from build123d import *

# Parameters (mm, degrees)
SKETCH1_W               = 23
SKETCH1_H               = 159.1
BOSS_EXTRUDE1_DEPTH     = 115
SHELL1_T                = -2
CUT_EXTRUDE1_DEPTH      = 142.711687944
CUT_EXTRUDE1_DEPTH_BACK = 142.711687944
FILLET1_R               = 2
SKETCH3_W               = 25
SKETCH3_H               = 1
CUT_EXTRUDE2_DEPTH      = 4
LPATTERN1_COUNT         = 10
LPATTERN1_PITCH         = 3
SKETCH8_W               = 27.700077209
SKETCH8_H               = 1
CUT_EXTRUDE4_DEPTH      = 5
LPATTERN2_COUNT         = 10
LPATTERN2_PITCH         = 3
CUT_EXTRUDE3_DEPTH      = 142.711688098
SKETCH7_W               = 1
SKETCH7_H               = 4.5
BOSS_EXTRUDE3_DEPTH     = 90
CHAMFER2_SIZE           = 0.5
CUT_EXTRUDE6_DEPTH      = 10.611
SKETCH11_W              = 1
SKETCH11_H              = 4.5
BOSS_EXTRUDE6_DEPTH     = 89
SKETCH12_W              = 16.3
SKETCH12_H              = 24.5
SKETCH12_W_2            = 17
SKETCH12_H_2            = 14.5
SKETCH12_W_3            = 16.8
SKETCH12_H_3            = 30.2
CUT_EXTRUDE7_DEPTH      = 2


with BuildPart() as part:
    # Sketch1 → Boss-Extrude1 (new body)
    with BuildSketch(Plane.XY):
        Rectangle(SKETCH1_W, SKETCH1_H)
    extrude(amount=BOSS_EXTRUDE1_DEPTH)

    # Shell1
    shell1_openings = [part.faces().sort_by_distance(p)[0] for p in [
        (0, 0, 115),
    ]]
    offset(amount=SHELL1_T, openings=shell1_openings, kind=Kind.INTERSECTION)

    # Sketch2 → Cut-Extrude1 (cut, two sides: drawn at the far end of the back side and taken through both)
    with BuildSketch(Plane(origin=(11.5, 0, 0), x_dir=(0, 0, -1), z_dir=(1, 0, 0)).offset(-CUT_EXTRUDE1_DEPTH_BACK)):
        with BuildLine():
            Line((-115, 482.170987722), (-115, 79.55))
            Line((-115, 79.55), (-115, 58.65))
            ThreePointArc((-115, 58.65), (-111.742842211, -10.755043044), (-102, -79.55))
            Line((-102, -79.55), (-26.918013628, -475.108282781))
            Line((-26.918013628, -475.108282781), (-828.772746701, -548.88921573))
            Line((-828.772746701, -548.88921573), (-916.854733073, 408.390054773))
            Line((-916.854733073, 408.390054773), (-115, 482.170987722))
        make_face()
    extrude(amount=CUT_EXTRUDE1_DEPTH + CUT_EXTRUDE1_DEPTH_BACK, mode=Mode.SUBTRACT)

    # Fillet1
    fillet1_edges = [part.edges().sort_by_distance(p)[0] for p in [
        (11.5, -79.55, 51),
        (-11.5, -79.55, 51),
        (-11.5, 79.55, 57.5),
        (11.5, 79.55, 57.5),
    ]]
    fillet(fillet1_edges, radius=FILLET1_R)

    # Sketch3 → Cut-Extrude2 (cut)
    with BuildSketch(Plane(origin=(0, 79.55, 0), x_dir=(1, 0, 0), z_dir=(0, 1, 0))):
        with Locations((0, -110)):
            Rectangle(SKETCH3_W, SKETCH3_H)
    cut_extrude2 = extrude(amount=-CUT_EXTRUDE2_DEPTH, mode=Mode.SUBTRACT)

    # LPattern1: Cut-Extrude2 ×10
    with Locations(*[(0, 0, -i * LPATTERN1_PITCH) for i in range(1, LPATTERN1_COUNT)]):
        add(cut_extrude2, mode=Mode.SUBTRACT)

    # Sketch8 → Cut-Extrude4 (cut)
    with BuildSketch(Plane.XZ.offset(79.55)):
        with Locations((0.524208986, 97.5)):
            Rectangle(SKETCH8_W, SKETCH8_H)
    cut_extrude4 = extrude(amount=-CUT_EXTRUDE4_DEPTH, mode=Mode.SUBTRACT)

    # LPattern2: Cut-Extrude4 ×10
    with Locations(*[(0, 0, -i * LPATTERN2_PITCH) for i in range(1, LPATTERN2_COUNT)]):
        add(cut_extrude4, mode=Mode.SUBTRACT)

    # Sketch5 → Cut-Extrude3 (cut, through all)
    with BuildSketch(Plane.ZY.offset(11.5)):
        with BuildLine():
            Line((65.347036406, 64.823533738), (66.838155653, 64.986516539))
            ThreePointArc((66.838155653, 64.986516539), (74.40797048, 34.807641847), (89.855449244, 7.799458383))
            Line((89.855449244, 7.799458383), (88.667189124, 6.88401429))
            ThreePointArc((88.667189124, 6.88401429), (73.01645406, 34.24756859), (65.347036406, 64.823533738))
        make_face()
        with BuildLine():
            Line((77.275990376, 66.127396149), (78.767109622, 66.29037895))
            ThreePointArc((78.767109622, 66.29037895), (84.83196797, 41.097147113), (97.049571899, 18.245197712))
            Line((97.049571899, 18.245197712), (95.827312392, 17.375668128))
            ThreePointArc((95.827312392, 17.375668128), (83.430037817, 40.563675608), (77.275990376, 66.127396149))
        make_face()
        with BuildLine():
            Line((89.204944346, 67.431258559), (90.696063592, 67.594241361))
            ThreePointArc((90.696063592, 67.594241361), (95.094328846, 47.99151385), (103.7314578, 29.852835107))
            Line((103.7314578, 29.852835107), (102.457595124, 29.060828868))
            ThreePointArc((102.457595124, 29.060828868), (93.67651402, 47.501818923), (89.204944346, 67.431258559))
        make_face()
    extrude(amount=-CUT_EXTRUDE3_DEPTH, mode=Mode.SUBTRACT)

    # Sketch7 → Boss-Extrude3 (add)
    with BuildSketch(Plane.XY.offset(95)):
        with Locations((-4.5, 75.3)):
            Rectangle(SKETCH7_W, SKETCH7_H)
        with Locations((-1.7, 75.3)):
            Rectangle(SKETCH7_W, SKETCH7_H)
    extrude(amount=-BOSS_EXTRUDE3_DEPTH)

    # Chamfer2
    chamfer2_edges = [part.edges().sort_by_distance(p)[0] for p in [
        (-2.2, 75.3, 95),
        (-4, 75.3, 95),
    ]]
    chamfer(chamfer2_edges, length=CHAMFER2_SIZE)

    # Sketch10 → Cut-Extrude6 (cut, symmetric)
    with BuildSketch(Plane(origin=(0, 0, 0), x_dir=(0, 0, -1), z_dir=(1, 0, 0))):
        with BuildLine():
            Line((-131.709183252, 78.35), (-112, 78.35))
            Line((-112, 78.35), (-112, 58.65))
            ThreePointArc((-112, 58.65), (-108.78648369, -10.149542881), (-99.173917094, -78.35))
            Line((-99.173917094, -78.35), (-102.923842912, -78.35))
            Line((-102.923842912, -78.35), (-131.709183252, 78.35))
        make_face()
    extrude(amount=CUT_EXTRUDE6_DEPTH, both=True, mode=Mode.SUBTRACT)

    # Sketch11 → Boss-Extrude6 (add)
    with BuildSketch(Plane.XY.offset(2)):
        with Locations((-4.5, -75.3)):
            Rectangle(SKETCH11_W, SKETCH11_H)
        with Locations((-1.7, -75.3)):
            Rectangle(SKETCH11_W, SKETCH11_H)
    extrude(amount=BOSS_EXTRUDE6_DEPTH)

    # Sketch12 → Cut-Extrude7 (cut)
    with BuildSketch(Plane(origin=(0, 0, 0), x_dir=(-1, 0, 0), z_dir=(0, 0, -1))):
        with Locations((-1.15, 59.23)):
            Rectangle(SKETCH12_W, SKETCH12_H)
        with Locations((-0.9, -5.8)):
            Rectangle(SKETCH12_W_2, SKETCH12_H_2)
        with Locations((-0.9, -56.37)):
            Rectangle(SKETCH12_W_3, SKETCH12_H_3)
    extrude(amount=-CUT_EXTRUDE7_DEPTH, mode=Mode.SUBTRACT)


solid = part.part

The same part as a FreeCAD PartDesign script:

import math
import FreeCAD as App
import Part
import Sketcher


def edges_at(feature, points):
    """Names of the edges that pass closest to the given points."""
    edges = feature.Shape.Edges
    near = lambda p: min(range(len(edges)), key=lambda i: edges[i].distToShape(Part.Vertex(*p))[0])
    return sorted({f"Edge{near(p) + 1}" for p in points})


def faces_at(feature, points):
    """Names of the faces that lie closest to the given points."""
    faces = feature.Shape.Faces
    near = lambda p: min(range(len(faces)), key=lambda i: faces[i].distToShape(Part.Vertex(*p))[0])
    return sorted({f"Face{near(p) + 1}" for p in points})

doc = App.newDocument("Part")
body = doc.addObject("PartDesign::Body", "Body")

sketch1 = body.newObject("Sketcher::SketchObject", "Sketch")
sketch1.AttachmentSupport = (doc.getObject("XY_Plane"), [""])
sketch1.MapMode = "FlatFace"
sketch1.addGeometry(Part.LineSegment(App.Vector(-12, 80, 0), App.Vector(-12, -80, 0)), False)
sketch1.addGeometry(Part.LineSegment(App.Vector(-12, -80, 0), App.Vector(12, -80, 0)), False)
sketch1.addGeometry(Part.LineSegment(App.Vector(12, -80, 0), App.Vector(12, 80, 0)), False)
sketch1.addGeometry(Part.LineSegment(App.Vector(12, 80, 0), App.Vector(-12, 80, 0)), False)
sketch1.addConstraint(Sketcher.Constraint("Coincident", 0, 2, 1, 1))
sketch1.addConstraint(Sketcher.Constraint("Coincident", 1, 2, 2, 1))
sketch1.addConstraint(Sketcher.Constraint("Coincident", 2, 2, 3, 1))
sketch1.addConstraint(Sketcher.Constraint("Coincident", 3, 2, 0, 1))
sketch1.addConstraint(Sketcher.Constraint("Vertical", 0))
sketch1.addConstraint(Sketcher.Constraint("Horizontal", 1))
sketch1.addConstraint(Sketcher.Constraint("Vertical", 2))
sketch1.addConstraint(Sketcher.Constraint("Horizontal", 3))
sketch1.addConstraint(Sketcher.Constraint("Symmetric", 0, 2, 2, 2, -1, 1))
sketch1.addConstraint(Sketcher.Constraint("DistanceX", 1, 1, 1, 2, 23.0))
sketch1.addConstraint(Sketcher.Constraint("DistanceY", 0, 2, 0, 1, 159.1))
pad1 = body.newObject("PartDesign::Pad", "Pad")
pad1.Profile = sketch1
pad1.Length = 115
doc.recompute()

thickness = body.newObject("PartDesign::Thickness", "Thickness")
thickness.Base = (pad1, faces_at(pad1, [(0, 0, 115)]))
thickness.Value = 2
thickness.Reversed = True
thickness.Join = "Intersection"

sketch2 = body.newObject("Sketcher::SketchObject", "Sketch001")
sketch2.AttachmentSupport = (doc.getObject("YZ_Plane"), [""])
sketch2.MapMode = "FlatFace"
sketch2.AttachmentOffset = App.Placement(App.Vector(0, 0, 11.5), App.Rotation())
sketch2.addGeometry(Part.LineSegment(App.Vector(59, 115, 0), App.Vector(482, 115, 0)), False)
sketch2.addGeometry(Part.LineSegment(App.Vector(482, 115, 0), App.Vector(408, 917, 0)), False)
sketch2.addGeometry(Part.LineSegment(App.Vector(408, 917, 0), App.Vector(-549, 829, 0)), False)
sketch2.addGeometry(Part.LineSegment(App.Vector(-549, 829, 0), App.Vector(-475, 27, 0)), False)
sketch2.addGeometry(Part.LineSegment(App.Vector(-475, 27, 0), App.Vector(-80, 102, 0)), False)
sketch2.addGeometry(Part.ArcOfCircle(Part.Circle(App.Vector(59, -626, 0), App.Vector(0, 0, 1), 741), math.radians(90), math.radians(100.75)), False)
sketch2.addConstraint(Sketcher.Constraint("Coincident", 0, 2, 1, 1))
sketch2.addConstraint(Sketcher.Constraint("Coincident", 1, 2, 2, 1))
sketch2.addConstraint(Sketcher.Constraint("Coincident", 2, 2, 3, 1))
sketch2.addConstraint(Sketcher.Constraint("Coincident", 3, 2, 4, 1))
sketch2.addConstraint(Sketcher.Constraint("Tangent", 4, 2, 5, 2))
sketch2.addConstraint(Sketcher.Constraint("Tangent", 5, 1, 0, 1))
sketch2.addConstraint(Sketcher.Constraint("Horizontal", 0))
sketch2.addConstraint(Sketcher.Constraint("Perpendicular", 1, 2))
sketch2.addConstraint(Sketcher.Constraint("Perpendicular", 2, 3))
sketch2.addConstraint(Sketcher.Constraint("Equal", 1, 3))
sketch2.addConstraint(Sketcher.Constraint("DistanceY", -1, 1, 0, 2, 115.0))
sketch2.addConstraint(Sketcher.Constraint("DistanceY", -1, 1, 4, 2, 102.0))
sketch2.addConstraint(Sketcher.Constraint("DistanceX", 4, 2, 5, 3, 138.2))
sketch2.addConstraint(Sketcher.Constraint("DistanceX", -1, 1, 5, 3, 58.65))
sketch2.addConstraint(Sketcher.Constraint("DistanceY", 5, 3, 2, 2, 1454.858901))
sketch2.addConstraint(Sketcher.Constraint("DistanceX", 0, 1, 0, 2, 423.520988))
sketch2.addConstraint(Sketcher.Constraint("DistanceX", 2, 2, 1, 2, 957.279271))
pocket1 = body.newObject("PartDesign::Pocket", "Pocket")
pocket1.Profile = sketch2
pocket1.Type = "ThroughAll"
pocket1.Midplane = True
doc.recompute()

fillet = body.newObject("PartDesign::Fillet", "Fillet")
fillet.Base = (pocket1, edges_at(pocket1, [
    (11.5, -79.55, 51),
    (-11.5, -79.55, 51),
    (-11.5, 79.55, 57.5),
    (11.5, 79.55, 57.5),
]))
fillet.Radius = 2

sketch3 = body.newObject("Sketcher::SketchObject", "Sketch002")
sketch3.AttachmentSupport = (doc.getObject("XZ_Plane"), [""])
sketch3.MapMode = "FlatFace"
sketch3.AttachmentOffset = App.Placement(App.Vector(0, 0, -79.55), App.Rotation())
sketch3.addGeometry(Part.LineSegment(App.Vector(-12.5, 109.5, 0), App.Vector(-12.5, 110.5, 0)), False)
sketch3.addGeometry(Part.LineSegment(App.Vector(-12.5, 110.5, 0), App.Vector(12.5, 110.5, 0)), False)
sketch3.addGeometry(Part.LineSegment(App.Vector(12.5, 110.5, 0), App.Vector(12.5, 109.5, 0)), False)
sketch3.addGeometry(Part.LineSegment(App.Vector(12.5, 109.5, 0), App.Vector(-12.5, 109.5, 0)), False)
sketch3.addConstraint(Sketcher.Constraint("Coincident", 0, 2, 1, 1))
sketch3.addConstraint(Sketcher.Constraint("Coincident", 1, 2, 2, 1))
sketch3.addConstraint(Sketcher.Constraint("Coincident", 2, 2, 3, 1))
sketch3.addConstraint(Sketcher.Constraint("Coincident", 3, 2, 0, 1))
sketch3.addConstraint(Sketcher.Constraint("Vertical", 0))
sketch3.addConstraint(Sketcher.Constraint("Horizontal", 1))
sketch3.addConstraint(Sketcher.Constraint("Vertical", 2))
sketch3.addConstraint(Sketcher.Constraint("Horizontal", 3))
sketch3.addConstraint(Sketcher.Constraint("DistanceX", 1, 1, 1, 2, 25.0))
sketch3.addConstraint(Sketcher.Constraint("DistanceY", 0, 1, 0, 2, 1.0))
sketch3.addConstraint(Sketcher.Constraint("DistanceX", 0, 2, -1, 1, 12.5))
sketch3.addConstraint(Sketcher.Constraint("DistanceY", -1, 1, 0, 2, 110.5))
pocket2 = body.newObject("PartDesign::Pocket", "Pocket001")
pocket2.Profile = sketch3
pocket2.Length = 4
pocket2.Reversed = True
doc.recompute()

linearpattern = body.newObject("PartDesign::LinearPattern", "LinearPattern")
linearpattern.Originals = [pocket2]
linearpattern.Direction = (doc.getObject("Z_Axis"), [""])
linearpattern.Mode = "offset"
linearpattern.Offset = 3
linearpattern.Occurrences = 10
linearpattern.Reversed = True
body.Tip = linearpattern

sketch4 = body.newObject("Sketcher::SketchObject", "Sketch003")
sketch4.AttachmentSupport = (doc.getObject("XZ_Plane"), [""])
sketch4.MapMode = "FlatFace"
sketch4.AttachmentOffset = App.Placement(App.Vector(0, 0, 79.55), App.Rotation())
sketch4.addGeometry(Part.LineSegment(App.Vector(-13.3, 98, 0), App.Vector(-13.3, 97, 0)), False)
sketch4.addGeometry(Part.LineSegment(App.Vector(-13.3, 97, 0), App.Vector(14.4, 97, 0)), False)
sketch4.addGeometry(Part.LineSegment(App.Vector(14.4, 97, 0), App.Vector(14.4, 98, 0)), False)
sketch4.addGeometry(Part.LineSegment(App.Vector(14.4, 98, 0), App.Vector(-13.3, 98, 0)), False)
sketch4.addConstraint(Sketcher.Constraint("Coincident", 0, 2, 1, 1))
sketch4.addConstraint(Sketcher.Constraint("Coincident", 1, 2, 2, 1))
sketch4.addConstraint(Sketcher.Constraint("Coincident", 2, 2, 3, 1))
sketch4.addConstraint(Sketcher.Constraint("Coincident", 3, 2, 0, 1))
sketch4.addConstraint(Sketcher.Constraint("Vertical", 0))
sketch4.addConstraint(Sketcher.Constraint("Horizontal", 1))
sketch4.addConstraint(Sketcher.Constraint("Vertical", 2))
sketch4.addConstraint(Sketcher.Constraint("Horizontal", 3))
sketch4.addConstraint(Sketcher.Constraint("DistanceY", 0, 2, 0, 1, 1.0))
sketch4.addConstraint(Sketcher.Constraint("DistanceY", -1, 1, 0, 2, 97.0))
sketch4.addConstraint(Sketcher.Constraint("DistanceX", 1, 1, 1, 2, 27.700077))
sketch4.addConstraint(Sketcher.Constraint("DistanceX", 0, 2, -1, 1, 13.32583))
pocket3 = body.newObject("PartDesign::Pocket", "Pocket002")
pocket3.Profile = sketch4
pocket3.Length = 5
doc.recompute()

linearpattern2 = body.newObject("PartDesign::LinearPattern", "LinearPattern001")
linearpattern2.Originals = [pocket3]
linearpattern2.Direction = (doc.getObject("Z_Axis"), [""])
linearpattern2.Mode = "offset"
linearpattern2.Offset = 3
linearpattern2.Occurrences = 10
linearpattern2.Reversed = True
body.Tip = linearpattern2

sketch5 = body.newObject("Sketcher::SketchObject", "Sketch004")
sketch5.AttachmentSupport = (doc.getObject("YZ_Plane"), [""])
sketch5.MapMode = "FlatFace"
sketch5.AttachmentOffset = App.Placement(App.Vector(0, 0, -11.5), App.Rotation())
sketch5.addGeometry(Part.LineSegment(App.Vector(65, 66.8, 0), App.Vector(64.8, 65.3, 0)), False)
sketch5.addGeometry(Part.ArcOfCircle(Part.Circle(App.Vector(77.4, 180.2, 0), App.Vector(0, 0, 1), 115.5), math.radians(-128), math.radians(-96)), False)
sketch5.addGeometry(Part.LineSegment(App.Vector(6.9, 88.7, 0), App.Vector(7.8, 89.9, 0)), False)
sketch5.addGeometry(Part.ArcOfCircle(Part.Circle(App.Vector(77.4, 180.2, 0), App.Vector(0, 0, 1), 114), math.radians(-128), math.radians(-96)), False)
sketch5.addGeometry(Part.LineSegment(App.Vector(66.3, 78.8, 0), App.Vector(66.1, 77.3, 0)), False)
sketch5.addGeometry(Part.ArcOfCircle(Part.Circle(App.Vector(77.4, 180.2, 0), App.Vector(0, 0, 1), 103.5), math.radians(-125), math.radians(-96)), False)
sketch5.addGeometry(Part.LineSegment(App.Vector(17.4, 95.8, 0), App.Vector(18.2, 97, 0)), False)
sketch5.addGeometry(Part.ArcOfCircle(Part.Circle(App.Vector(77.4, 180.2, 0), App.Vector(0, 0, 1), 102), math.radians(-125), math.radians(-96)), False)
sketch5.addGeometry(Part.LineSegment(App.Vector(67.6, 90.7, 0), App.Vector(67.4, 89.2, 0)), False)
sketch5.addGeometry(Part.ArcOfCircle(Part.Circle(App.Vector(77.4, 180.2, 0), App.Vector(0, 0, 1), 91.5), math.radians(-122), math.radians(-96)), False)
sketch5.addGeometry(Part.LineSegment(App.Vector(29.1, 102.5, 0), App.Vector(29.9, 103.7, 0)), False)
sketch5.addGeometry(Part.ArcOfCircle(Part.Circle(App.Vector(77.4, 180.2, 0), App.Vector(0, 0, 1), 90), math.radians(-122), math.radians(-96)), False)
sketch5.addConstraint(Sketcher.Constraint("Coincident", 0, 2, 1, 2))
sketch5.addConstraint(Sketcher.Constraint("Coincident", 1, 1, 2, 1))
sketch5.addConstraint(Sketcher.Constraint("Coincident", 2, 2, 3, 1))
sketch5.addConstraint(Sketcher.Constraint("Coincident", 3, 2, 0, 1))
sketch5.addConstraint(Sketcher.Constraint("Coincident", 4, 2, 5, 2))
sketch5.addConstraint(Sketcher.Constraint("Coincident", 5, 1, 6, 1))
sketch5.addConstraint(Sketcher.Constraint("Coincident", 6, 2, 7, 1))
sketch5.addConstraint(Sketcher.Constraint("Coincident", 7, 2, 4, 1))
sketch5.addConstraint(Sketcher.Constraint("Coincident", 8, 2, 9, 2))
sketch5.addConstraint(Sketcher.Constraint("Coincident", 9, 1, 10, 1))
sketch5.addConstraint(Sketcher.Constraint("Coincident", 10, 2, 11, 1))
sketch5.addConstraint(Sketcher.Constraint("Coincident", 11, 2, 8, 1))
sketch5.addConstraint(Sketcher.Constraint("Coincident", 3, 3, 1, 3))
sketch5.addConstraint(Sketcher.Constraint("Coincident", 5, 3, 1, 3))
sketch5.addConstraint(Sketcher.Constraint("Coincident", 7, 3, 1, 3))
sketch5.addConstraint(Sketcher.Constraint("Coincident", 9, 3, 1, 3))
sketch5.addConstraint(Sketcher.Constraint("Coincident", 11, 3, 1, 3))
sketch5.addConstraint(Sketcher.Constraint("Parallel", 0, 4))
sketch5.addConstraint(Sketcher.Constraint("Parallel", 4, 8))
sketch5.addConstraint(Sketcher.Constraint("Equal", 2, 4))
sketch5.addConstraint(Sketcher.Constraint("Equal", 6, 8))
sketch5.addConstraint(Sketcher.Constraint("Radius", 3, 114.0))
sketch5.addConstraint(Sketcher.Constraint("Radius", 7, 102.0))
sketch5.addConstraint(Sketcher.Constraint("Radius", 11, 90.0))
sketch5.addConstraint(Sketcher.Constraint("Radius", 1, 115.5))
sketch5.addConstraint(Sketcher.Constraint("DistanceY", 4, 2, 1, 1, 11.391199))
sketch5.addConstraint(Sketcher.Constraint("DistanceX", 6, 2, 4, 2, 47.882198))
sketch5.addConstraint(Sketcher.Constraint("DistanceX", -1, 1, 1, 3, 77.373209))
sketch5.addConstraint(Sketcher.Constraint("DistanceY", -1, 1, 1, 3, 180.163218))
sketch5.addConstraint(Sketcher.Constraint("DistanceX", -1, 1, 2, 2, 7.799458))
sketch5.addConstraint(Sketcher.Constraint("DistanceY", -1, 1, 4, 2, 77.27599))
sketch5.addConstraint(Sketcher.Constraint("DistanceX", -1, 1, 5, 1, 17.375668))
sketch5.addConstraint(Sketcher.Constraint("DistanceX", -1, 1, 7, 2, 66.290379))
sketch5.addConstraint(Sketcher.Constraint("DistanceX", -1, 1, 8, 2, 67.431259))
sketch5.addConstraint(Sketcher.Constraint("DistanceX", -1, 1, 9, 1, 29.060829))
sketch5.addConstraint(Sketcher.Constraint("DistanceY", 0, 2, 9, 3, 114.816182))
sketch5.addConstraint(Sketcher.Constraint("DistanceY", 2, 2, 10, 2, 13.876009))
pocket4 = body.newObject("PartDesign::Pocket", "Pocket003")
pocket4.Profile = sketch5
pocket4.Type = "ThroughAll"
pocket4.Reversed = True

sketch6 = body.newObject("Sketcher::SketchObject", "Sketch005")
sketch6.AttachmentSupport = (doc.getObject("XY_Plane"), [""])
sketch6.MapMode = "FlatFace"
sketch6.AttachmentOffset = App.Placement(App.Vector(0, 0, 95), App.Rotation())
sketch6.addGeometry(Part.LineSegment(App.Vector(-5, 77.5, 0), App.Vector(-5, 73, 0)), False)
sketch6.addGeometry(Part.LineSegment(App.Vector(-5, 73, 0), App.Vector(-4, 73, 0)), False)
sketch6.addGeometry(Part.LineSegment(App.Vector(-4, 73, 0), App.Vector(-4, 77.5, 0)), False)
sketch6.addGeometry(Part.LineSegment(App.Vector(-4, 77.5, 0), App.Vector(-5, 77.5, 0)), False)
sketch6.addGeometry(Part.LineSegment(App.Vector(-2.2, 77.5, 0), App.Vector(-2.2, 73, 0)), False)
sketch6.addGeometry(Part.LineSegment(App.Vector(-2.2, 73, 0), App.Vector(-1.2, 73, 0)), False)
sketch6.addGeometry(Part.LineSegment(App.Vector(-1.2, 73, 0), App.Vector(-1.2, 77.5, 0)), False)
sketch6.addGeometry(Part.LineSegment(App.Vector(-1.2, 77.5, 0), App.Vector(-2.2, 77.5, 0)), False)
sketch6.addConstraint(Sketcher.Constraint("Coincident", 0, 2, 1, 1))
sketch6.addConstraint(Sketcher.Constraint("Coincident", 1, 2, 2, 1))
sketch6.addConstraint(Sketcher.Constraint("Coincident", 2, 2, 3, 1))
sketch6.addConstraint(Sketcher.Constraint("Coincident", 3, 2, 0, 1))
sketch6.addConstraint(Sketcher.Constraint("Coincident", 4, 2, 5, 1))
sketch6.addConstraint(Sketcher.Constraint("Coincident", 5, 2, 6, 1))
sketch6.addConstraint(Sketcher.Constraint("Coincident", 6, 2, 7, 1))
sketch6.addConstraint(Sketcher.Constraint("Coincident", 7, 2, 4, 1))
sketch6.addConstraint(Sketcher.Constraint("Vertical", 0))
sketch6.addConstraint(Sketcher.Constraint("Horizontal", 1))
sketch6.addConstraint(Sketcher.Constraint("Vertical", 2))
sketch6.addConstraint(Sketcher.Constraint("Horizontal", 3))
sketch6.addConstraint(Sketcher.Constraint("Vertical", 4))
sketch6.addConstraint(Sketcher.Constraint("Horizontal", 5))
sketch6.addConstraint(Sketcher.Constraint("Vertical", 6))
sketch6.addConstraint(Sketcher.Constraint("Horizontal", 7))
sketch6.addConstraint(Sketcher.Constraint("Horizontal", 1, 2, 4, 2))
sketch6.addConstraint(Sketcher.Constraint("Horizontal", 3, 2, 6, 2))
sketch6.addConstraint(Sketcher.Constraint("Equal", 3, 5))
sketch6.addConstraint(Sketcher.Constraint("DistanceX", 1, 1, 1, 2, 1.0))
sketch6.addConstraint(Sketcher.Constraint("DistanceY", 0, 2, 0, 1, 4.5))
sketch6.addConstraint(Sketcher.Constraint("DistanceX", 0, 2, -1, 1, 5.0))
sketch6.addConstraint(Sketcher.Constraint("DistanceX", 4, 2, -1, 1, 2.2))
sketch6.addConstraint(Sketcher.Constraint("DistanceY", -1, 1, 0, 2, 73.05))
pad2 = body.newObject("PartDesign::Pad", "Pad001")
pad2.Profile = sketch6
pad2.Length = 90
pad2.Reversed = True
doc.recompute()

chamfer = body.newObject("PartDesign::Chamfer", "Chamfer")
chamfer.Base = (pad2, edges_at(pad2, [(-2.2, 75.3, 95), (-4, 75.3, 95)]))
chamfer.Size = 0.5

sketch7 = body.newObject("Sketcher::SketchObject", "Sketch006")
sketch7.AttachmentSupport = (doc.getObject("YZ_Plane"), [""])
sketch7.MapMode = "FlatFace"
sketch7.addGeometry(Part.LineSegment(App.Vector(78.3, 112, 0), App.Vector(78.3, 131.7, 0)), False)
sketch7.addGeometry(Part.LineSegment(App.Vector(78.3, 131.7, 0), App.Vector(-78.3, 102.9, 0)), False)
sketch7.addGeometry(Part.LineSegment(App.Vector(-78.3, 102.9, 0), App.Vector(-78.3, 99.2, 0)), False)
sketch7.addGeometry(Part.ArcOfCircle(Part.Circle(App.Vector(58.6, -626.1, 0), App.Vector(0, 0, 1), 738.1), math.radians(90), math.radians(100.7)), False)
sketch7.addGeometry(Part.LineSegment(App.Vector(58.6, 112, 0), App.Vector(78.3, 112, 0)), False)
sketch7.addConstraint(Sketcher.Constraint("Coincident", 0, 2, 1, 1))
sketch7.addConstraint(Sketcher.Constraint("Coincident", 1, 2, 2, 1))
sketch7.addConstraint(Sketcher.Constraint("Coincident", 2, 2, 3, 2))
sketch7.addConstraint(Sketcher.Constraint("Tangent", 3, 1, 4, 1))
sketch7.addConstraint(Sketcher.Constraint("Coincident", 4, 2, 0, 1))
sketch7.addConstraint(Sketcher.Constraint("Vertical", 0))
sketch7.addConstraint(Sketcher.Constraint("Vertical", 2))
sketch7.addConstraint(Sketcher.Constraint("Horizontal", 4))
sketch7.addConstraint(Sketcher.Constraint("DistanceX", 4, 1, 4, 2, 19.7))
sketch7.addConstraint(Sketcher.Constraint("DistanceY", -1, 1, 3, 1, 112.0))
sketch7.addConstraint(Sketcher.Constraint("DistanceX", 1, 2, 3, 3, 137.0))
sketch7.addConstraint(Sketcher.Constraint("DistanceX", -1, 1, 3, 3, 58.65))
sketch7.addConstraint(Sketcher.Constraint("Radius", 3, 738.086154))
sketch7.addConstraint(Sketcher.Constraint("DistanceY", 0, 1, 0, 2, 19.709183))
sketch7.addConstraint(Sketcher.Constraint("DistanceY", 2, 2, 2, 1, 3.749926))
pocket5 = body.newObject("PartDesign::Pocket", "Pocket004")
pocket5.Profile = sketch7
pocket5.Length = 21.222
pocket5.Midplane = True

sketch8 = body.newObject("Sketcher::SketchObject", "Sketch007")
sketch8.AttachmentSupport = (doc.getObject("XY_Plane"), [""])
sketch8.MapMode = "FlatFace"
sketch8.AttachmentOffset = App.Placement(App.Vector(0, 0, 2), App.Rotation())
sketch8.addGeometry(Part.LineSegment(App.Vector(-5, -73, 0), App.Vector(-5, -77.5, 0)), False)
sketch8.addGeometry(Part.LineSegment(App.Vector(-5, -77.5, 0), App.Vector(-4, -77.5, 0)), False)
sketch8.addGeometry(Part.LineSegment(App.Vector(-4, -77.5, 0), App.Vector(-4, -73, 0)), False)
sketch8.addGeometry(Part.LineSegment(App.Vector(-4, -73, 0), App.Vector(-5, -73, 0)), False)
sketch8.addGeometry(Part.LineSegment(App.Vector(-2.2, -73, 0), App.Vector(-2.2, -77.5, 0)), False)
sketch8.addGeometry(Part.LineSegment(App.Vector(-2.2, -77.5, 0), App.Vector(-1.2, -77.5, 0)), False)
sketch8.addGeometry(Part.LineSegment(App.Vector(-1.2, -77.5, 0), App.Vector(-1.2, -73, 0)), False)
sketch8.addGeometry(Part.LineSegment(App.Vector(-1.2, -73, 0), App.Vector(-2.2, -73, 0)), False)
sketch8.addConstraint(Sketcher.Constraint("Coincident", 0, 2, 1, 1))
sketch8.addConstraint(Sketcher.Constraint("Coincident", 1, 2, 2, 1))
sketch8.addConstraint(Sketcher.Constraint("Coincident", 2, 2, 3, 1))
sketch8.addConstraint(Sketcher.Constraint("Coincident", 3, 2, 0, 1))
sketch8.addConstraint(Sketcher.Constraint("Coincident", 4, 2, 5, 1))
sketch8.addConstraint(Sketcher.Constraint("Coincident", 5, 2, 6, 1))
sketch8.addConstraint(Sketcher.Constraint("Coincident", 6, 2, 7, 1))
sketch8.addConstraint(Sketcher.Constraint("Coincident", 7, 2, 4, 1))
sketch8.addConstraint(Sketcher.Constraint("Vertical", 0))
sketch8.addConstraint(Sketcher.Constraint("Horizontal", 1))
sketch8.addConstraint(Sketcher.Constraint("Vertical", 2))
sketch8.addConstraint(Sketcher.Constraint("Horizontal", 3))
sketch8.addConstraint(Sketcher.Constraint("Vertical", 4))
sketch8.addConstraint(Sketcher.Constraint("Horizontal", 5))
sketch8.addConstraint(Sketcher.Constraint("Vertical", 6))
sketch8.addConstraint(Sketcher.Constraint("Horizontal", 7))
sketch8.addConstraint(Sketcher.Constraint("Horizontal", 1, 2, 4, 2))
sketch8.addConstraint(Sketcher.Constraint("Horizontal", 3, 2, 6, 2))
sketch8.addConstraint(Sketcher.Constraint("Equal", 3, 5))
sketch8.addConstraint(Sketcher.Constraint("DistanceX", 1, 1, 1, 2, 1.0))
sketch8.addConstraint(Sketcher.Constraint("DistanceY", 0, 2, 0, 1, 4.5))
sketch8.addConstraint(Sketcher.Constraint("DistanceX", 0, 2, -1, 1, 5.0))
sketch8.addConstraint(Sketcher.Constraint("DistanceX", 4, 2, -1, 1, 2.2))
sketch8.addConstraint(Sketcher.Constraint("DistanceY", 0, 2, -1, 1, 77.55))
pad3 = body.newObject("PartDesign::Pad", "Pad002")
pad3.Profile = sketch8
pad3.Length = 89

sketch9 = body.newObject("Sketcher::SketchObject", "Sketch008")
sketch9.AttachmentSupport = (doc.getObject("XY_Plane"), [""])
sketch9.MapMode = "FlatFace"
sketch9.addGeometry(Part.LineSegment(App.Vector(9, 71, 0), App.Vector(9, 47, 0)), False)
sketch9.addGeometry(Part.LineSegment(App.Vector(9, 47, 0), App.Vector(-7, 47, 0)), False)
sketch9.addGeometry(Part.LineSegment(App.Vector(-7, 47, 0), App.Vector(-7, 71, 0)), False)
sketch9.addGeometry(Part.LineSegment(App.Vector(-7, 71, 0), App.Vector(9, 71, 0)), False)
sketch9.addGeometry(Part.LineSegment(App.Vector(9, 1, 0), App.Vector(9, -13, 0)), False)
sketch9.addGeometry(Part.LineSegment(App.Vector(9, -13, 0), App.Vector(-8, -13, 0)), False)
sketch9.addGeometry(Part.LineSegment(App.Vector(-8, -13, 0), App.Vector(-8, 1, 0)), False)
sketch9.addGeometry(Part.LineSegment(App.Vector(-8, 1, 0), App.Vector(9, 1, 0)), False)
sketch9.addGeometry(Part.LineSegment(App.Vector(9, -41, 0), App.Vector(9, -71, 0)), False)
sketch9.addGeometry(Part.LineSegment(App.Vector(9, -71, 0), App.Vector(-8, -71, 0)), False)
sketch9.addGeometry(Part.LineSegment(App.Vector(-8, -71, 0), App.Vector(-8, -41, 0)), False)
sketch9.addGeometry(Part.LineSegment(App.Vector(-8, -41, 0), App.Vector(9, -41, 0)), False)
sketch9.addConstraint(Sketcher.Constraint("Coincident", 0, 2, 1, 1))
sketch9.addConstraint(Sketcher.Constraint("Coincident", 1, 2, 2, 1))
sketch9.addConstraint(Sketcher.Constraint("Coincident", 2, 2, 3, 1))
sketch9.addConstraint(Sketcher.Constraint("Coincident", 3, 2, 0, 1))
sketch9.addConstraint(Sketcher.Constraint("Coincident", 4, 2, 5, 1))
sketch9.addConstraint(Sketcher.Constraint("Coincident", 5, 2, 6, 1))
sketch9.addConstraint(Sketcher.Constraint("Coincident", 6, 2, 7, 1))
sketch9.addConstraint(Sketcher.Constraint("Coincident", 7, 2, 4, 1))
sketch9.addConstraint(Sketcher.Constraint("Coincident", 8, 2, 9, 1))
sketch9.addConstraint(Sketcher.Constraint("Coincident", 9, 2, 10, 1))
sketch9.addConstraint(Sketcher.Constraint("Coincident", 10, 2, 11, 1))
sketch9.addConstraint(Sketcher.Constraint("Coincident", 11, 2, 8, 1))
sketch9.addConstraint(Sketcher.Constraint("Vertical", 0))
sketch9.addConstraint(Sketcher.Constraint("Horizontal", 1))
sketch9.addConstraint(Sketcher.Constraint("Vertical", 2))
sketch9.addConstraint(Sketcher.Constraint("Horizontal", 3))
sketch9.addConstraint(Sketcher.Constraint("Vertical", 4))
sketch9.addConstraint(Sketcher.Constraint("Horizontal", 5))
sketch9.addConstraint(Sketcher.Constraint("Vertical", 6))
sketch9.addConstraint(Sketcher.Constraint("Horizontal", 7))
sketch9.addConstraint(Sketcher.Constraint("Vertical", 8))
sketch9.addConstraint(Sketcher.Constraint("Horizontal", 9))
sketch9.addConstraint(Sketcher.Constraint("Vertical", 10))
sketch9.addConstraint(Sketcher.Constraint("Horizontal", 11))
sketch9.addConstraint(Sketcher.Constraint("Vertical", 3, 2, 8, 2))
sketch9.addConstraint(Sketcher.Constraint("DistanceX", 5, 2, 5, 1, 17.0))
sketch9.addConstraint(Sketcher.Constraint("DistanceX", 1, 2, 1, 1, 16.3))
sketch9.addConstraint(Sketcher.Constraint("DistanceX", 9, 2, 9, 1, 16.8))
sketch9.addConstraint(Sketcher.Constraint("DistanceY", 0, 2, 0, 1, 24.5))
sketch9.addConstraint(Sketcher.Constraint("DistanceY", 4, 2, 4, 1, 14.5))
sketch9.addConstraint(Sketcher.Constraint("DistanceY", 8, 2, 8, 1, 30.2))
sketch9.addConstraint(Sketcher.Constraint("DistanceX", 1, 2, -1, 1, 7.0))
sketch9.addConstraint(Sketcher.Constraint("DistanceX", -1, 1, 4, 2, 9.4))
sketch9.addConstraint(Sketcher.Constraint("DistanceY", -1, 1, 0, 2, 46.98))
sketch9.addConstraint(Sketcher.Constraint("DistanceY", 4, 2, -1, 1, 13.05))
sketch9.addConstraint(Sketcher.Constraint("DistanceY", 8, 2, -1, 1, 71.47))
pocket6 = body.newObject("PartDesign::Pocket", "Pocket005")
pocket6.Profile = sketch9
pocket6.Length = 2
pocket6.Reversed = True

doc.recompute()
